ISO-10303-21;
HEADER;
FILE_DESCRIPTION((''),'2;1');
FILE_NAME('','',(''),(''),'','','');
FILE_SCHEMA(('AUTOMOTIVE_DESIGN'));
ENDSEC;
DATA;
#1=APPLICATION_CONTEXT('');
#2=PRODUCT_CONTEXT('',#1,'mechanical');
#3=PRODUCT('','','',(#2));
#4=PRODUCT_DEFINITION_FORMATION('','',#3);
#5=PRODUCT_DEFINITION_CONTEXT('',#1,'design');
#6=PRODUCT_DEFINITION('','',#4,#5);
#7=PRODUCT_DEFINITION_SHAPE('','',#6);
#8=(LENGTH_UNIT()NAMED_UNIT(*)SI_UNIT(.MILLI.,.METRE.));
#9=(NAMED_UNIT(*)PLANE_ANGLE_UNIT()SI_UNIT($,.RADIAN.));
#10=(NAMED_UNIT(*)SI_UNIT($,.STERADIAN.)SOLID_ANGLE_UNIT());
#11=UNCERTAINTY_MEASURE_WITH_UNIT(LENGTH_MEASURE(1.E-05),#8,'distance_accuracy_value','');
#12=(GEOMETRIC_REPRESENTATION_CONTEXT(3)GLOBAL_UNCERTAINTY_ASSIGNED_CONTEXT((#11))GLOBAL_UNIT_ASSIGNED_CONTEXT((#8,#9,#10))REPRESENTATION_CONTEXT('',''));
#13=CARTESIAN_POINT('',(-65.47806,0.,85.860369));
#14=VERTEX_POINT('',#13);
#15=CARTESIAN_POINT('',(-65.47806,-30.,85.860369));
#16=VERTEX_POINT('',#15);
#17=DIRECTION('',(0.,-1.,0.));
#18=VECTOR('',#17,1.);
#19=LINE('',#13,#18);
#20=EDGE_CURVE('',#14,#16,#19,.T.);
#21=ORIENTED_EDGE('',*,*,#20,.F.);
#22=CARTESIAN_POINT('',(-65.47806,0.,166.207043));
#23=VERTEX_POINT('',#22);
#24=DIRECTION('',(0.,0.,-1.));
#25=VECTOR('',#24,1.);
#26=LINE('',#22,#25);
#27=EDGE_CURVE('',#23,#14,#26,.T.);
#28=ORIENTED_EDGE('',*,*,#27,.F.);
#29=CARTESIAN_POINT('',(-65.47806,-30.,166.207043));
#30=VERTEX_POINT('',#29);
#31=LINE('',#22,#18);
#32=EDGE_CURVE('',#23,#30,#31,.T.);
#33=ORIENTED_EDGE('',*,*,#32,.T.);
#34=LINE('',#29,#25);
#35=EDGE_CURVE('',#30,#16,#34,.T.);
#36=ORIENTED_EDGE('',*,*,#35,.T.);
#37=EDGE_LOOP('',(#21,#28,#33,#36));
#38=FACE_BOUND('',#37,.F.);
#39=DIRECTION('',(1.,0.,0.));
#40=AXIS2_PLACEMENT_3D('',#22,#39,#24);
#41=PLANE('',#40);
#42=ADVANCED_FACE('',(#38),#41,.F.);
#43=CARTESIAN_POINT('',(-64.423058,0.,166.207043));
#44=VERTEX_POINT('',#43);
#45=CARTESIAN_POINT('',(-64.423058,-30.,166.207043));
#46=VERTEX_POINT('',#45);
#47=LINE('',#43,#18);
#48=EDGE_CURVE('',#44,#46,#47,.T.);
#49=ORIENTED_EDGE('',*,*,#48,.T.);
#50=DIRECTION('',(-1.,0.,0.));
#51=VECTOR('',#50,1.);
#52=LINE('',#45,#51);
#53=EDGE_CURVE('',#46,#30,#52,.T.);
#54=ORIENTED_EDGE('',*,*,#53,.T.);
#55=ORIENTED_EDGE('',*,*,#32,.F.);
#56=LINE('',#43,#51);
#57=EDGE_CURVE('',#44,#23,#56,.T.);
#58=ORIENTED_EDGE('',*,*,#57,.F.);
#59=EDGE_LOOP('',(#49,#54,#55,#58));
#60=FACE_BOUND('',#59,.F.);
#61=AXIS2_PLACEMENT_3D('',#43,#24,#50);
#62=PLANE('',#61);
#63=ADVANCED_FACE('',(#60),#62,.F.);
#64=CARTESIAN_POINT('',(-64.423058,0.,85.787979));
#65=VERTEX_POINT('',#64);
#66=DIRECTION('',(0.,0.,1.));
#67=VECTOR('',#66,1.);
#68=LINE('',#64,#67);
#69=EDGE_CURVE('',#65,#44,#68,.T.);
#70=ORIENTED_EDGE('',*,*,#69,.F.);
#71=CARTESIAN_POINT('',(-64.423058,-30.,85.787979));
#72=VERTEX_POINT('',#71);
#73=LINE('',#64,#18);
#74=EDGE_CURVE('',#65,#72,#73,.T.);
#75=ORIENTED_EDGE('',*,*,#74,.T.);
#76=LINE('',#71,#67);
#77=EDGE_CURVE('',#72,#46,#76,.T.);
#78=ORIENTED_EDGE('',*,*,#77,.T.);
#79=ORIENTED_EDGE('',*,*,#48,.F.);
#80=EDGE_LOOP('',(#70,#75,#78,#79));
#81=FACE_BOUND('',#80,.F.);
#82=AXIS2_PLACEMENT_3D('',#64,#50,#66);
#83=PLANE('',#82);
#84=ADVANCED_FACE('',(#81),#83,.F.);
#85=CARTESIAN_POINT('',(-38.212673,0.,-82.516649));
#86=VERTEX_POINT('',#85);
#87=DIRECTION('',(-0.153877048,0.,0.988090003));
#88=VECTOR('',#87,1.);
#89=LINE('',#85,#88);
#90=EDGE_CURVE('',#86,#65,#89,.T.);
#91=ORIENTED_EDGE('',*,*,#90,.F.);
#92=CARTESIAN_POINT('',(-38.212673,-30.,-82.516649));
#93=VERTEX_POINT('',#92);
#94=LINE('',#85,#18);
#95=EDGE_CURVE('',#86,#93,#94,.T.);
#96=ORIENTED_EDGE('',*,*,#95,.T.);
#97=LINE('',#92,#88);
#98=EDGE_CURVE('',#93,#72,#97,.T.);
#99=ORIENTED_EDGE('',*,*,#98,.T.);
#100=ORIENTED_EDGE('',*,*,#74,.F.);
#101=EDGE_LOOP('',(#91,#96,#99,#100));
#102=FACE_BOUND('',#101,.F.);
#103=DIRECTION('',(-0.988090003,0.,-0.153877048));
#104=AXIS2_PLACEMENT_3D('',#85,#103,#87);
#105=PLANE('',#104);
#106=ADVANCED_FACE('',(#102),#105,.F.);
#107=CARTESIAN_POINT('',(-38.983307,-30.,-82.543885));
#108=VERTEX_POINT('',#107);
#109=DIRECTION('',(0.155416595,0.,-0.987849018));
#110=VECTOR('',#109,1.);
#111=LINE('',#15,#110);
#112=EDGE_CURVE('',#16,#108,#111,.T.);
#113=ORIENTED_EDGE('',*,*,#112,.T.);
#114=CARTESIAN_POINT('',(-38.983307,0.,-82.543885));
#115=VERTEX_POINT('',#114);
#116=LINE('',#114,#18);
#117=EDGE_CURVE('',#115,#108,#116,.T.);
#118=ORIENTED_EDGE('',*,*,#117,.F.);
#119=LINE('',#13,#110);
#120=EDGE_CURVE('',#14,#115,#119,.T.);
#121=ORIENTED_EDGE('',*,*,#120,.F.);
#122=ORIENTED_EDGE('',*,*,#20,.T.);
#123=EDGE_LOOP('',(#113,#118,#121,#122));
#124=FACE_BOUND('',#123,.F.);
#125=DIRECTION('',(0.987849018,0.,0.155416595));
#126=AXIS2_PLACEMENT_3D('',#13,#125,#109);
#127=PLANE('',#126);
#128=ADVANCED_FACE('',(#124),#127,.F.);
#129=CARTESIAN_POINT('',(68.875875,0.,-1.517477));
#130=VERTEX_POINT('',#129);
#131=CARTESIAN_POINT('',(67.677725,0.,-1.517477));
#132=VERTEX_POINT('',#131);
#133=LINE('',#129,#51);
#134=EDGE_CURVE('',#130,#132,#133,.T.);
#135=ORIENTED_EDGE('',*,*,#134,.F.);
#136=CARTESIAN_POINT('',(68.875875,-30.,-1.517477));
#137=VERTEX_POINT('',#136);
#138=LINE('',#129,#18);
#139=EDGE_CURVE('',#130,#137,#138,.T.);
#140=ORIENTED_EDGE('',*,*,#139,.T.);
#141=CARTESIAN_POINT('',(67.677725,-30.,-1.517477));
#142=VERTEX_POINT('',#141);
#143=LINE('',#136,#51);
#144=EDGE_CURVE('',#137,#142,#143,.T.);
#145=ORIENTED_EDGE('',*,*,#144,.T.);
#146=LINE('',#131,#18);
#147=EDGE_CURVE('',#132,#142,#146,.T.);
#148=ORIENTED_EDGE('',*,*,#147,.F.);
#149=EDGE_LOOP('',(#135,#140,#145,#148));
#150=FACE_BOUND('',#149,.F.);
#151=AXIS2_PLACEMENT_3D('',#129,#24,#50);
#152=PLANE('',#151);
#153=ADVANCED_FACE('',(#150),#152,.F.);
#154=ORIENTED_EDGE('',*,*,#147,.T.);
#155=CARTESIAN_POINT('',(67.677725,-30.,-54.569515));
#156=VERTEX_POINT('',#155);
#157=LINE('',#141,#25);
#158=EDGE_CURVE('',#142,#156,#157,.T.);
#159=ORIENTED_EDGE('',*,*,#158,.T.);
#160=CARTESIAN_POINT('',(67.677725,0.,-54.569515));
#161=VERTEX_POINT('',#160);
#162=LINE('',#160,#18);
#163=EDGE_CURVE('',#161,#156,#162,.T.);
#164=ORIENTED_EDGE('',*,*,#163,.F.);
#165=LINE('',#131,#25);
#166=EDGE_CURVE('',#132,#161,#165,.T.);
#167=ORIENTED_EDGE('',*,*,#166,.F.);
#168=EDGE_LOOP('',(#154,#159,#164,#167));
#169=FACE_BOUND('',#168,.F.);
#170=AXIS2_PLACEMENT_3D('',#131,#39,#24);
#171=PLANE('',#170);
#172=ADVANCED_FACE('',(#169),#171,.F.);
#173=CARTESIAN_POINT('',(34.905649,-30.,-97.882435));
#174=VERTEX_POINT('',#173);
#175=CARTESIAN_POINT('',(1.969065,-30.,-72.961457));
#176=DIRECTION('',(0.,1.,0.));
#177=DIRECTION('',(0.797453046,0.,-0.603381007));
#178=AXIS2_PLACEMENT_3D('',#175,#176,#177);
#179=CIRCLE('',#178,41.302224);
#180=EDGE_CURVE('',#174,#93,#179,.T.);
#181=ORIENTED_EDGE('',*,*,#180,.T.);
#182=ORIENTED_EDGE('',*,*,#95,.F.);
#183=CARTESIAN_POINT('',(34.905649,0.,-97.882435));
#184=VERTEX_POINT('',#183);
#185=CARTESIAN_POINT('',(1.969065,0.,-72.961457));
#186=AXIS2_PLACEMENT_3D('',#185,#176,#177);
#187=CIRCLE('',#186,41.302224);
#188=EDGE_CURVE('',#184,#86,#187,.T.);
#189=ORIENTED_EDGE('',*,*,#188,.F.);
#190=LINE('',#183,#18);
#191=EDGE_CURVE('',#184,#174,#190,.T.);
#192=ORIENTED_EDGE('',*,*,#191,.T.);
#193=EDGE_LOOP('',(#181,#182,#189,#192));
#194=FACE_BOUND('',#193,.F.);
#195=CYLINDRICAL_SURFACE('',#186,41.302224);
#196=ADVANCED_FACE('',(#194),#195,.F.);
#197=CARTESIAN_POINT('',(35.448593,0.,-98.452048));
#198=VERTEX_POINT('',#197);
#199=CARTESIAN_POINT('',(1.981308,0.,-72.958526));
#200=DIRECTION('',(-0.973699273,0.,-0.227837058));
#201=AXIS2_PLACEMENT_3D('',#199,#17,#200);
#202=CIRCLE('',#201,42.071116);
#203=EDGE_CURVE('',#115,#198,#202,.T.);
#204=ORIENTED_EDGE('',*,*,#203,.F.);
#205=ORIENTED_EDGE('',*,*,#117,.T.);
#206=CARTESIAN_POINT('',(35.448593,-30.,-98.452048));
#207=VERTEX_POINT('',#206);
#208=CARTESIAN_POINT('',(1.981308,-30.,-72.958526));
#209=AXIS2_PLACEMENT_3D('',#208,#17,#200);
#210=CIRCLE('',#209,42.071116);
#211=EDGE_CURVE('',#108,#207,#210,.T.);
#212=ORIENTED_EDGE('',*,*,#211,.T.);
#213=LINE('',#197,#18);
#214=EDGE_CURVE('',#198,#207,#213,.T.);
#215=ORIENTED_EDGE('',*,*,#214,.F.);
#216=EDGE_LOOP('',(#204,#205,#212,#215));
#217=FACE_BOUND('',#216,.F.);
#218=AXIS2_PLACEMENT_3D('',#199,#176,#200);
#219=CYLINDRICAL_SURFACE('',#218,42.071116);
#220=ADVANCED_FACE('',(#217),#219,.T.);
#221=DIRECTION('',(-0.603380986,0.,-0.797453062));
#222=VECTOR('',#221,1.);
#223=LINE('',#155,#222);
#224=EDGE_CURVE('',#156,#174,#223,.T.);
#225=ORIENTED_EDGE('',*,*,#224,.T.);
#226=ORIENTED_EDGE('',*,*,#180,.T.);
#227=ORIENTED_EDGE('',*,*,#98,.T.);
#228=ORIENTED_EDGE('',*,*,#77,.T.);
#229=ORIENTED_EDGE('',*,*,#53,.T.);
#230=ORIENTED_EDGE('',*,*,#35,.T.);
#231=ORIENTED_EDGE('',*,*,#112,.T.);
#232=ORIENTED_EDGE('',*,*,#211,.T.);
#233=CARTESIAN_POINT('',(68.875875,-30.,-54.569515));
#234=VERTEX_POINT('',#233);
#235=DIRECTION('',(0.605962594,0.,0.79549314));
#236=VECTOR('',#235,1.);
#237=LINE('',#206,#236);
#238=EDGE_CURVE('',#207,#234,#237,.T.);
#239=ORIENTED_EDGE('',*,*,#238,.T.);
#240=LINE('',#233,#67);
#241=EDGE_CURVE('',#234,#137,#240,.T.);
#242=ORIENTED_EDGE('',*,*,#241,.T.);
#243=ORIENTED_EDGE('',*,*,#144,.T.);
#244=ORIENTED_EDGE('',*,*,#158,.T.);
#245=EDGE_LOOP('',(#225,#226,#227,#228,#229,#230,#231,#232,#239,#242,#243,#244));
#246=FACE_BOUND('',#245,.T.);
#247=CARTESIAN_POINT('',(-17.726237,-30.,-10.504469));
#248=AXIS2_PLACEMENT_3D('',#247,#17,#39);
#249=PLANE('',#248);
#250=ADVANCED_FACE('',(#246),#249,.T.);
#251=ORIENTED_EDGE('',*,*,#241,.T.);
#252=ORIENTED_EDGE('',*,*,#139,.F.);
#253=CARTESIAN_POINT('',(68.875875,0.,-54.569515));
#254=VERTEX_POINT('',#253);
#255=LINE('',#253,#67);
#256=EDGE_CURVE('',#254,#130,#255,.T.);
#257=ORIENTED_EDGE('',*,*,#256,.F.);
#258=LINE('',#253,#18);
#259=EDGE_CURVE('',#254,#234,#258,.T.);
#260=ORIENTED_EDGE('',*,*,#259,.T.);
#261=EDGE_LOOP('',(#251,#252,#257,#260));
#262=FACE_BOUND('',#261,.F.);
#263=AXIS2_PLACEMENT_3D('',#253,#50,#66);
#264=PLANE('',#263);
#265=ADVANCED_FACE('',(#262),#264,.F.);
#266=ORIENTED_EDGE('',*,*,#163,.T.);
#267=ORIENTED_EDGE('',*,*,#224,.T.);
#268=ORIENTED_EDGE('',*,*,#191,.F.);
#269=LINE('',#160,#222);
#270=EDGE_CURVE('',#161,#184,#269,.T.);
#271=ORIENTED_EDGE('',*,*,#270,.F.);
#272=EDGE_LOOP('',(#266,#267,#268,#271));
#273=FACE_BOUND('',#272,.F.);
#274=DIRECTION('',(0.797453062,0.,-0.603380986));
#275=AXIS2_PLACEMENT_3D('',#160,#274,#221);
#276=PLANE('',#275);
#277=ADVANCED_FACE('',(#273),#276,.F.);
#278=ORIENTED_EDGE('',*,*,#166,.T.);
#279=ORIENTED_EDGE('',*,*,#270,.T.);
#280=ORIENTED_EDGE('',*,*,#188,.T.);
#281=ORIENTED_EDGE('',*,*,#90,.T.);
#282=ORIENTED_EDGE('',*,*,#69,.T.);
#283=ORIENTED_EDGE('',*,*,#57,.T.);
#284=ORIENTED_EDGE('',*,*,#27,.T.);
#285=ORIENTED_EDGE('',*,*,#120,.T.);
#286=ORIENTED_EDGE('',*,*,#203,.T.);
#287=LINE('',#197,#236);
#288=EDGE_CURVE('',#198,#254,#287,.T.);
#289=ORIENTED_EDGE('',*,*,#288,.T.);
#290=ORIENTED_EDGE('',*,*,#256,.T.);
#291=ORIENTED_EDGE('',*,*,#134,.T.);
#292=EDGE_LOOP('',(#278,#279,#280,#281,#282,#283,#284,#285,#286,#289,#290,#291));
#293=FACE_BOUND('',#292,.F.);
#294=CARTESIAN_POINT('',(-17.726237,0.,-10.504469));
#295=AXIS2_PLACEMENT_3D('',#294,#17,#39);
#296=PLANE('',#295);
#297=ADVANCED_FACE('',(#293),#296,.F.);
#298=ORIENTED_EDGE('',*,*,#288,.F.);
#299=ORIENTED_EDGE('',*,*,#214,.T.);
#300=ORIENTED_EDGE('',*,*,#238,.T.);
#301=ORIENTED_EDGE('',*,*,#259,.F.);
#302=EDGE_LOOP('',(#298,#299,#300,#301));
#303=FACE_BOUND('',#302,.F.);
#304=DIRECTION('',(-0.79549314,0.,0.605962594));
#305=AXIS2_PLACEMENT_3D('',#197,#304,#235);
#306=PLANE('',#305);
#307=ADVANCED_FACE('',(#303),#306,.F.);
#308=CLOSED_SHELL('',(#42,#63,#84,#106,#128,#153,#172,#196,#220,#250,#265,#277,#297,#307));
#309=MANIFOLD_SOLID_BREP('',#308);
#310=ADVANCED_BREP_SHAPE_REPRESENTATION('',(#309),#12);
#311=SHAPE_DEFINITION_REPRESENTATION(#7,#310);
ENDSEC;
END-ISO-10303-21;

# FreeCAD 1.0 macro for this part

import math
import FreeCAD as App
import Part
import Sketcher
Q = App.Units.Quantity

doc = App.newDocument("Part")
body = doc.addObject("PartDesign::Body", "Body")

# Sketch on XZ plane
sketch1 = body.newObject("Sketcher::SketchObject", "Sketch")
sketch1.AttachmentSupport = (doc.getObject("XZ_Plane"), [""])
sketch1.MapMode = "FlatFace"
sketch1.addGeometry(Part.LineSegment(App.Vector(68.9, -1.5, 0), App.Vector(67.7, -1.5, 0)), False)
sketch1.addGeometry(Part.LineSegment(App.Vector(67.7, -1.5, 0), App.Vector(67.7, -54.6, 0)), False)
sketch1.addGeometry(Part.LineSegment(App.Vector(67.7, -54.6, 0), App.Vector(34.9, -97.9, 0)), False)
sketch1.addGeometry(Part.ArcOfCircle(Part.Circle(App.Vector(2, -73, 0), App.Vector(0, 0, 1), 41.3), math.radians(-167), math.radians(-37)), False)
sketch1.addGeometry(Part.LineSegment(App.Vector(-38.2, -82.5, 0), App.Vector(-64.4, 85.8, 0)), False)
sketch1.addGeometry(Part.LineSegment(App.Vector(-64.4, 85.8, 0), App.Vector(-64.4, 166.2, 0)), False)
sketch1.addGeometry(Part.LineSegment(App.Vector(-64.4, 166.2, 0), App.Vector(-65.5, 166.2, 0)), False)
sketch1.addGeometry(Part.LineSegment(App.Vector(-65.5, 166.2, 0), App.Vector(-65.5, 85.9, 0)), False)
sketch1.addGeometry(Part.LineSegment(App.Vector(-65.5, 85.9, 0), App.Vector(-39, -82.5, 0)), False)
sketch1.addGeometry(Part.ArcOfCircle(Part.Circle(App.Vector(2, -73, 0), App.Vector(0, 0, 1), 42.1), math.radians(-167), math.radians(-37)), False)
sketch1.addGeometry(Part.LineSegment(App.Vector(35.4, -98.5, 0), App.Vector(68.9, -54.6, 0)), False)
sketch1.addGeometry(Part.LineSegment(App.Vector(68.9, -54.6, 0), App.Vector(68.9, -1.5, 0)), False)
sketch1.addConstraint(Sketcher.Constraint("Coincident", 0, 2, 1, 1))
sketch1.addConstraint(Sketcher.Constraint("Coincident", 1, 2, 2, 1))
sketch1.addConstraint(Sketcher.Constraint("Tangent", 2, 2, 3, 2))
sketch1.addConstraint(Sketcher.Constraint("Coincident", 3, 1, 4, 1))
sketch1.addConstraint(Sketcher.Constraint("Coincident", 4, 2, 5, 1))
sketch1.addConstraint(Sketcher.Constraint("Coincident", 5, 2, 6, 1))
sketch1.addConstraint(Sketcher.Constraint("Coincident", 6, 2, 7, 1))
sketch1.addConstraint(Sketcher.Constraint("Coincident", 7, 2, 8, 1))
sketch1.addConstraint(Sketcher.Constraint("Coincident", 8, 2, 9, 1))
sketch1.addConstraint(Sketcher.Constraint("Tangent", 9, 2, 10, 1))
sketch1.addConstraint(Sketcher.Constraint("Coincident", 10, 2, 11, 1))
sketch1.addConstraint(Sketcher.Constraint("Coincident", 11, 2, 0, 1))
sketch1.addConstraint(Sketcher.Constraint("Horizontal", 0))
sketch1.addConstraint(Sketcher.Constraint("Vertical", 1))
sketch1.addConstraint(Sketcher.Constraint("Vertical", 5))
sketch1.addConstraint(Sketcher.Constraint("Horizontal", 6))
sketch1.addConstraint(Sketcher.Constraint("Vertical", 7))
sketch1.addConstraint(Sketcher.Constraint("Vertical", 11))
sketch1.addConstraint(Sketcher.Constraint("Horizontal", 1, 2, 10, 2))
sketch1.addConstraint(Sketcher.Constraint("Radius", 3, Q("41.302224 mm")))
sketch1.addConstraint(Sketcher.Constraint("Radius", 9, Q("42.071116 mm")))
sketch1.addConstraint(Sketcher.Constraint("Distance", 8, Q("170.475701 mm")))
sketch1.addConstraint(Sketcher.Constraint("DistanceX", 0, 2, 0, 1, Q("1.19815 mm")))
sketch1.addConstraint(Sketcher.Constraint("DistanceY", 1, 2, 1, 1, Q("53.052038 mm")))
sketch1.addConstraint(Sketcher.Constraint("DistanceX", 3, 1, 1, 2, Q("105.890398 mm")))
sketch1.addConstraint(Sketcher.Constraint("DistanceY", 3, 3, 5, 2, Q("239.1685 mm")))
sketch1.addConstraint(Sketcher.Constraint("DistanceY", 9, 2, 3, 1, Q("15.935399 mm")))
sketch1.addConstraint(Sketcher.Constraint("Distance", 2, Q("54.314068 mm")))
sketch1.addConstraint(Sketcher.Constraint("DistanceX", 6, 2, 6, 1, Q("1.055002 mm")))
sketch1.addConstraint(Sketcher.Constraint("DistanceY", 5, 1, 5, 2, Q("80.419064 mm")))
sketch1.addConstraint(Sketcher.Constraint("DistanceY", 7, 2, 7, 1, Q("80.346674 mm")))
sketch1.addConstraint(Sketcher.Constraint("DistanceX", -1, 1, 9, 3, Q("1.981308 mm")))
sketch1.addConstraint(Sketcher.Constraint("DistanceX", -1, 1, 2, 2, Q("34.905649 mm")))
sketch1.addConstraint(Sketcher.Constraint("DistanceY", 3, 1, -1, 1, Q("82.516649 mm")))
sketch1.addConstraint(Sketcher.Constraint("DistanceY", -1, 1, 4, 2, Q("85.787979 mm")))
sketch1.addConstraint(Sketcher.Constraint("DistanceX", 6, 2, -1, 1, Q("65.47806 mm")))
pad1 = body.newObject("PartDesign::Pad", "Pad")
pad1.Profile = sketch1
pad1.Length = 30

doc.recompute()
